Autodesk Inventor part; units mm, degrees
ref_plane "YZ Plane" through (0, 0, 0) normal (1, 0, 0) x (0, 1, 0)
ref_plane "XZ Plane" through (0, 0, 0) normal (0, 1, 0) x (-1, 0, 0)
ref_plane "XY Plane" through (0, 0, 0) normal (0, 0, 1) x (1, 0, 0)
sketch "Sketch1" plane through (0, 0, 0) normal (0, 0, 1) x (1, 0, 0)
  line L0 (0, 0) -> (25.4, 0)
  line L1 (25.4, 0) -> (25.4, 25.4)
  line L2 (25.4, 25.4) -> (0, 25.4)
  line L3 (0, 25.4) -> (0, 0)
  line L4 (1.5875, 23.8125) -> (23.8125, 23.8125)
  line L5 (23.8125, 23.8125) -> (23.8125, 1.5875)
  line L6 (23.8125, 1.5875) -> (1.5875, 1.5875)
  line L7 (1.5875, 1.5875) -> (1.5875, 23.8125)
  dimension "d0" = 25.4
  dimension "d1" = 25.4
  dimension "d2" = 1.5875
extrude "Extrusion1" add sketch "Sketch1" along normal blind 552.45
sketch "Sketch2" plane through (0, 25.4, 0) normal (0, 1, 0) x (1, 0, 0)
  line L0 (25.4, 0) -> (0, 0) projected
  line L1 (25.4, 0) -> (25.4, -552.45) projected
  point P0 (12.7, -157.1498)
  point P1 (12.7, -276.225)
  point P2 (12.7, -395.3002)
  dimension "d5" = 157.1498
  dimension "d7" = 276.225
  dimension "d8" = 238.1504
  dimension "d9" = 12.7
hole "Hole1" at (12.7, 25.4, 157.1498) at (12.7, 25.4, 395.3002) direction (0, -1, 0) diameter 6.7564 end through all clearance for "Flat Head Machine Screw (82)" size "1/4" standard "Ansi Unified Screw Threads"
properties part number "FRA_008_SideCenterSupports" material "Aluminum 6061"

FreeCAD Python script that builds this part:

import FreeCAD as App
import Part
import Sketcher

V = App.Vector
Q = App.Units.Quantity


def add_polygon(sketch, points):
    """Adds a closed chain of lines whose ends are joined by coincident constraints."""
    first, n = sketch.GeometryCount, len(points)
    for a, b in zip(points, points[1:] + points[:1]):
        sketch.addGeometry(Part.LineSegment(App.Vector(*a, 0), App.Vector(*b, 0)), False)
    for i in range(n):
        sketch.addConstraint(Sketcher.Constraint("Coincident", first + i, 2, first + (i + 1) % n, 1))

doc = App.newDocument("Part")
body = doc.addObject("PartDesign::Body", "Body")

sketch1 = doc.addObject("Sketcher::SketchObject", "Sketch")
body.addObject(sketch1)
sketch1.AttachmentSupport = (doc.XY_Plane, [""])
sketch1.MapMode = "FlatFace"
add_polygon(sketch1, [(0, 25), (0, 0), (25, 0), (25, 25)])
add_polygon(sketch1, [(2, 2), (2, 24), (24, 24), (24, 2)])
sketch1.addConstraint([
    Sketcher.Constraint("Vertical", 0),
    Sketcher.Constraint("Horizontal", 1),
    Sketcher.Constraint("Vertical", 2),
    Sketcher.Constraint("Horizontal", 3),
    Sketcher.Constraint("Vertical", 4),
    Sketcher.Constraint("Horizontal", 5),
    Sketcher.Constraint("Vertical", 6),
    Sketcher.Constraint("Horizontal", 7),
    Sketcher.Constraint("Coincident", 0, 2, -1, 1),
    Sketcher.Constraint("Equal", 3, 0),
    Sketcher.Constraint("Equal", 7, 4),
    Sketcher.Constraint("DistanceX", 1, 1, 1, 2, Q("1 in")),
    Sketcher.Constraint("DistanceX", -1, 1, 4, 2, Q("0.0625 in")),
    Sketcher.Constraint("DistanceY", -1, 1, 6, 2, Q("0.0625 in")),
    Sketcher.Constraint("DistanceY", 4, 2, 3, 2, Q("0.0625 in")),
])
pad1 = doc.addObject("PartDesign::Pad", "Pad")
body.addObject(pad1)
pad1.Profile = sketch1
pad1.Length = Q("21.75 in")

sketch2 = doc.addObject("Sketcher::SketchObject", "Sketch001")
body.addObject(sketch2)
sketch2.AttachmentSupport = (doc.XZ_Plane, [""])
sketch2.MapMode = "FlatFace"
sketch2.AttachmentOffset = App.Placement(V(0, 0, -1 * 25.4), App.Rotation())
sketch2.addGeometry([
    Part.Circle(V(12.7, 157.1, 0), V(0, 0, 1), 3.4),
    Part.Circle(V(12.7, 395.3, 0), V(0, 0, 1), 3.4),
], False)
sketch2.addConstraint([
    Sketcher.Constraint("Equal", 0, 1),
    Sketcher.Constraint("Vertical", 0, 3, 1, 3),
    Sketcher.Constraint("Diameter", 0, Q("0.266 in")),
    Sketcher.Constraint("DistanceX", -1, 1, 0, 3, Q("0.5 in")),
    Sketcher.Constraint("DistanceY", -1, 1, 0, 3, Q("6.187 in")),
    Sketcher.Constraint("DistanceY", -1, 1, 1, 3, Q("15.563 in")),
])
doc.recompute()
hole = doc.addObject("PartDesign::Hole", "Hole")
body.addObject(hole)
hole.Profile = sketch2
hole.ThreadType = "None"
hole.Diameter = Q("0.266 in")
hole.DepthType = "ThroughAll"
hole.Reversed = True

doc.recompute()
